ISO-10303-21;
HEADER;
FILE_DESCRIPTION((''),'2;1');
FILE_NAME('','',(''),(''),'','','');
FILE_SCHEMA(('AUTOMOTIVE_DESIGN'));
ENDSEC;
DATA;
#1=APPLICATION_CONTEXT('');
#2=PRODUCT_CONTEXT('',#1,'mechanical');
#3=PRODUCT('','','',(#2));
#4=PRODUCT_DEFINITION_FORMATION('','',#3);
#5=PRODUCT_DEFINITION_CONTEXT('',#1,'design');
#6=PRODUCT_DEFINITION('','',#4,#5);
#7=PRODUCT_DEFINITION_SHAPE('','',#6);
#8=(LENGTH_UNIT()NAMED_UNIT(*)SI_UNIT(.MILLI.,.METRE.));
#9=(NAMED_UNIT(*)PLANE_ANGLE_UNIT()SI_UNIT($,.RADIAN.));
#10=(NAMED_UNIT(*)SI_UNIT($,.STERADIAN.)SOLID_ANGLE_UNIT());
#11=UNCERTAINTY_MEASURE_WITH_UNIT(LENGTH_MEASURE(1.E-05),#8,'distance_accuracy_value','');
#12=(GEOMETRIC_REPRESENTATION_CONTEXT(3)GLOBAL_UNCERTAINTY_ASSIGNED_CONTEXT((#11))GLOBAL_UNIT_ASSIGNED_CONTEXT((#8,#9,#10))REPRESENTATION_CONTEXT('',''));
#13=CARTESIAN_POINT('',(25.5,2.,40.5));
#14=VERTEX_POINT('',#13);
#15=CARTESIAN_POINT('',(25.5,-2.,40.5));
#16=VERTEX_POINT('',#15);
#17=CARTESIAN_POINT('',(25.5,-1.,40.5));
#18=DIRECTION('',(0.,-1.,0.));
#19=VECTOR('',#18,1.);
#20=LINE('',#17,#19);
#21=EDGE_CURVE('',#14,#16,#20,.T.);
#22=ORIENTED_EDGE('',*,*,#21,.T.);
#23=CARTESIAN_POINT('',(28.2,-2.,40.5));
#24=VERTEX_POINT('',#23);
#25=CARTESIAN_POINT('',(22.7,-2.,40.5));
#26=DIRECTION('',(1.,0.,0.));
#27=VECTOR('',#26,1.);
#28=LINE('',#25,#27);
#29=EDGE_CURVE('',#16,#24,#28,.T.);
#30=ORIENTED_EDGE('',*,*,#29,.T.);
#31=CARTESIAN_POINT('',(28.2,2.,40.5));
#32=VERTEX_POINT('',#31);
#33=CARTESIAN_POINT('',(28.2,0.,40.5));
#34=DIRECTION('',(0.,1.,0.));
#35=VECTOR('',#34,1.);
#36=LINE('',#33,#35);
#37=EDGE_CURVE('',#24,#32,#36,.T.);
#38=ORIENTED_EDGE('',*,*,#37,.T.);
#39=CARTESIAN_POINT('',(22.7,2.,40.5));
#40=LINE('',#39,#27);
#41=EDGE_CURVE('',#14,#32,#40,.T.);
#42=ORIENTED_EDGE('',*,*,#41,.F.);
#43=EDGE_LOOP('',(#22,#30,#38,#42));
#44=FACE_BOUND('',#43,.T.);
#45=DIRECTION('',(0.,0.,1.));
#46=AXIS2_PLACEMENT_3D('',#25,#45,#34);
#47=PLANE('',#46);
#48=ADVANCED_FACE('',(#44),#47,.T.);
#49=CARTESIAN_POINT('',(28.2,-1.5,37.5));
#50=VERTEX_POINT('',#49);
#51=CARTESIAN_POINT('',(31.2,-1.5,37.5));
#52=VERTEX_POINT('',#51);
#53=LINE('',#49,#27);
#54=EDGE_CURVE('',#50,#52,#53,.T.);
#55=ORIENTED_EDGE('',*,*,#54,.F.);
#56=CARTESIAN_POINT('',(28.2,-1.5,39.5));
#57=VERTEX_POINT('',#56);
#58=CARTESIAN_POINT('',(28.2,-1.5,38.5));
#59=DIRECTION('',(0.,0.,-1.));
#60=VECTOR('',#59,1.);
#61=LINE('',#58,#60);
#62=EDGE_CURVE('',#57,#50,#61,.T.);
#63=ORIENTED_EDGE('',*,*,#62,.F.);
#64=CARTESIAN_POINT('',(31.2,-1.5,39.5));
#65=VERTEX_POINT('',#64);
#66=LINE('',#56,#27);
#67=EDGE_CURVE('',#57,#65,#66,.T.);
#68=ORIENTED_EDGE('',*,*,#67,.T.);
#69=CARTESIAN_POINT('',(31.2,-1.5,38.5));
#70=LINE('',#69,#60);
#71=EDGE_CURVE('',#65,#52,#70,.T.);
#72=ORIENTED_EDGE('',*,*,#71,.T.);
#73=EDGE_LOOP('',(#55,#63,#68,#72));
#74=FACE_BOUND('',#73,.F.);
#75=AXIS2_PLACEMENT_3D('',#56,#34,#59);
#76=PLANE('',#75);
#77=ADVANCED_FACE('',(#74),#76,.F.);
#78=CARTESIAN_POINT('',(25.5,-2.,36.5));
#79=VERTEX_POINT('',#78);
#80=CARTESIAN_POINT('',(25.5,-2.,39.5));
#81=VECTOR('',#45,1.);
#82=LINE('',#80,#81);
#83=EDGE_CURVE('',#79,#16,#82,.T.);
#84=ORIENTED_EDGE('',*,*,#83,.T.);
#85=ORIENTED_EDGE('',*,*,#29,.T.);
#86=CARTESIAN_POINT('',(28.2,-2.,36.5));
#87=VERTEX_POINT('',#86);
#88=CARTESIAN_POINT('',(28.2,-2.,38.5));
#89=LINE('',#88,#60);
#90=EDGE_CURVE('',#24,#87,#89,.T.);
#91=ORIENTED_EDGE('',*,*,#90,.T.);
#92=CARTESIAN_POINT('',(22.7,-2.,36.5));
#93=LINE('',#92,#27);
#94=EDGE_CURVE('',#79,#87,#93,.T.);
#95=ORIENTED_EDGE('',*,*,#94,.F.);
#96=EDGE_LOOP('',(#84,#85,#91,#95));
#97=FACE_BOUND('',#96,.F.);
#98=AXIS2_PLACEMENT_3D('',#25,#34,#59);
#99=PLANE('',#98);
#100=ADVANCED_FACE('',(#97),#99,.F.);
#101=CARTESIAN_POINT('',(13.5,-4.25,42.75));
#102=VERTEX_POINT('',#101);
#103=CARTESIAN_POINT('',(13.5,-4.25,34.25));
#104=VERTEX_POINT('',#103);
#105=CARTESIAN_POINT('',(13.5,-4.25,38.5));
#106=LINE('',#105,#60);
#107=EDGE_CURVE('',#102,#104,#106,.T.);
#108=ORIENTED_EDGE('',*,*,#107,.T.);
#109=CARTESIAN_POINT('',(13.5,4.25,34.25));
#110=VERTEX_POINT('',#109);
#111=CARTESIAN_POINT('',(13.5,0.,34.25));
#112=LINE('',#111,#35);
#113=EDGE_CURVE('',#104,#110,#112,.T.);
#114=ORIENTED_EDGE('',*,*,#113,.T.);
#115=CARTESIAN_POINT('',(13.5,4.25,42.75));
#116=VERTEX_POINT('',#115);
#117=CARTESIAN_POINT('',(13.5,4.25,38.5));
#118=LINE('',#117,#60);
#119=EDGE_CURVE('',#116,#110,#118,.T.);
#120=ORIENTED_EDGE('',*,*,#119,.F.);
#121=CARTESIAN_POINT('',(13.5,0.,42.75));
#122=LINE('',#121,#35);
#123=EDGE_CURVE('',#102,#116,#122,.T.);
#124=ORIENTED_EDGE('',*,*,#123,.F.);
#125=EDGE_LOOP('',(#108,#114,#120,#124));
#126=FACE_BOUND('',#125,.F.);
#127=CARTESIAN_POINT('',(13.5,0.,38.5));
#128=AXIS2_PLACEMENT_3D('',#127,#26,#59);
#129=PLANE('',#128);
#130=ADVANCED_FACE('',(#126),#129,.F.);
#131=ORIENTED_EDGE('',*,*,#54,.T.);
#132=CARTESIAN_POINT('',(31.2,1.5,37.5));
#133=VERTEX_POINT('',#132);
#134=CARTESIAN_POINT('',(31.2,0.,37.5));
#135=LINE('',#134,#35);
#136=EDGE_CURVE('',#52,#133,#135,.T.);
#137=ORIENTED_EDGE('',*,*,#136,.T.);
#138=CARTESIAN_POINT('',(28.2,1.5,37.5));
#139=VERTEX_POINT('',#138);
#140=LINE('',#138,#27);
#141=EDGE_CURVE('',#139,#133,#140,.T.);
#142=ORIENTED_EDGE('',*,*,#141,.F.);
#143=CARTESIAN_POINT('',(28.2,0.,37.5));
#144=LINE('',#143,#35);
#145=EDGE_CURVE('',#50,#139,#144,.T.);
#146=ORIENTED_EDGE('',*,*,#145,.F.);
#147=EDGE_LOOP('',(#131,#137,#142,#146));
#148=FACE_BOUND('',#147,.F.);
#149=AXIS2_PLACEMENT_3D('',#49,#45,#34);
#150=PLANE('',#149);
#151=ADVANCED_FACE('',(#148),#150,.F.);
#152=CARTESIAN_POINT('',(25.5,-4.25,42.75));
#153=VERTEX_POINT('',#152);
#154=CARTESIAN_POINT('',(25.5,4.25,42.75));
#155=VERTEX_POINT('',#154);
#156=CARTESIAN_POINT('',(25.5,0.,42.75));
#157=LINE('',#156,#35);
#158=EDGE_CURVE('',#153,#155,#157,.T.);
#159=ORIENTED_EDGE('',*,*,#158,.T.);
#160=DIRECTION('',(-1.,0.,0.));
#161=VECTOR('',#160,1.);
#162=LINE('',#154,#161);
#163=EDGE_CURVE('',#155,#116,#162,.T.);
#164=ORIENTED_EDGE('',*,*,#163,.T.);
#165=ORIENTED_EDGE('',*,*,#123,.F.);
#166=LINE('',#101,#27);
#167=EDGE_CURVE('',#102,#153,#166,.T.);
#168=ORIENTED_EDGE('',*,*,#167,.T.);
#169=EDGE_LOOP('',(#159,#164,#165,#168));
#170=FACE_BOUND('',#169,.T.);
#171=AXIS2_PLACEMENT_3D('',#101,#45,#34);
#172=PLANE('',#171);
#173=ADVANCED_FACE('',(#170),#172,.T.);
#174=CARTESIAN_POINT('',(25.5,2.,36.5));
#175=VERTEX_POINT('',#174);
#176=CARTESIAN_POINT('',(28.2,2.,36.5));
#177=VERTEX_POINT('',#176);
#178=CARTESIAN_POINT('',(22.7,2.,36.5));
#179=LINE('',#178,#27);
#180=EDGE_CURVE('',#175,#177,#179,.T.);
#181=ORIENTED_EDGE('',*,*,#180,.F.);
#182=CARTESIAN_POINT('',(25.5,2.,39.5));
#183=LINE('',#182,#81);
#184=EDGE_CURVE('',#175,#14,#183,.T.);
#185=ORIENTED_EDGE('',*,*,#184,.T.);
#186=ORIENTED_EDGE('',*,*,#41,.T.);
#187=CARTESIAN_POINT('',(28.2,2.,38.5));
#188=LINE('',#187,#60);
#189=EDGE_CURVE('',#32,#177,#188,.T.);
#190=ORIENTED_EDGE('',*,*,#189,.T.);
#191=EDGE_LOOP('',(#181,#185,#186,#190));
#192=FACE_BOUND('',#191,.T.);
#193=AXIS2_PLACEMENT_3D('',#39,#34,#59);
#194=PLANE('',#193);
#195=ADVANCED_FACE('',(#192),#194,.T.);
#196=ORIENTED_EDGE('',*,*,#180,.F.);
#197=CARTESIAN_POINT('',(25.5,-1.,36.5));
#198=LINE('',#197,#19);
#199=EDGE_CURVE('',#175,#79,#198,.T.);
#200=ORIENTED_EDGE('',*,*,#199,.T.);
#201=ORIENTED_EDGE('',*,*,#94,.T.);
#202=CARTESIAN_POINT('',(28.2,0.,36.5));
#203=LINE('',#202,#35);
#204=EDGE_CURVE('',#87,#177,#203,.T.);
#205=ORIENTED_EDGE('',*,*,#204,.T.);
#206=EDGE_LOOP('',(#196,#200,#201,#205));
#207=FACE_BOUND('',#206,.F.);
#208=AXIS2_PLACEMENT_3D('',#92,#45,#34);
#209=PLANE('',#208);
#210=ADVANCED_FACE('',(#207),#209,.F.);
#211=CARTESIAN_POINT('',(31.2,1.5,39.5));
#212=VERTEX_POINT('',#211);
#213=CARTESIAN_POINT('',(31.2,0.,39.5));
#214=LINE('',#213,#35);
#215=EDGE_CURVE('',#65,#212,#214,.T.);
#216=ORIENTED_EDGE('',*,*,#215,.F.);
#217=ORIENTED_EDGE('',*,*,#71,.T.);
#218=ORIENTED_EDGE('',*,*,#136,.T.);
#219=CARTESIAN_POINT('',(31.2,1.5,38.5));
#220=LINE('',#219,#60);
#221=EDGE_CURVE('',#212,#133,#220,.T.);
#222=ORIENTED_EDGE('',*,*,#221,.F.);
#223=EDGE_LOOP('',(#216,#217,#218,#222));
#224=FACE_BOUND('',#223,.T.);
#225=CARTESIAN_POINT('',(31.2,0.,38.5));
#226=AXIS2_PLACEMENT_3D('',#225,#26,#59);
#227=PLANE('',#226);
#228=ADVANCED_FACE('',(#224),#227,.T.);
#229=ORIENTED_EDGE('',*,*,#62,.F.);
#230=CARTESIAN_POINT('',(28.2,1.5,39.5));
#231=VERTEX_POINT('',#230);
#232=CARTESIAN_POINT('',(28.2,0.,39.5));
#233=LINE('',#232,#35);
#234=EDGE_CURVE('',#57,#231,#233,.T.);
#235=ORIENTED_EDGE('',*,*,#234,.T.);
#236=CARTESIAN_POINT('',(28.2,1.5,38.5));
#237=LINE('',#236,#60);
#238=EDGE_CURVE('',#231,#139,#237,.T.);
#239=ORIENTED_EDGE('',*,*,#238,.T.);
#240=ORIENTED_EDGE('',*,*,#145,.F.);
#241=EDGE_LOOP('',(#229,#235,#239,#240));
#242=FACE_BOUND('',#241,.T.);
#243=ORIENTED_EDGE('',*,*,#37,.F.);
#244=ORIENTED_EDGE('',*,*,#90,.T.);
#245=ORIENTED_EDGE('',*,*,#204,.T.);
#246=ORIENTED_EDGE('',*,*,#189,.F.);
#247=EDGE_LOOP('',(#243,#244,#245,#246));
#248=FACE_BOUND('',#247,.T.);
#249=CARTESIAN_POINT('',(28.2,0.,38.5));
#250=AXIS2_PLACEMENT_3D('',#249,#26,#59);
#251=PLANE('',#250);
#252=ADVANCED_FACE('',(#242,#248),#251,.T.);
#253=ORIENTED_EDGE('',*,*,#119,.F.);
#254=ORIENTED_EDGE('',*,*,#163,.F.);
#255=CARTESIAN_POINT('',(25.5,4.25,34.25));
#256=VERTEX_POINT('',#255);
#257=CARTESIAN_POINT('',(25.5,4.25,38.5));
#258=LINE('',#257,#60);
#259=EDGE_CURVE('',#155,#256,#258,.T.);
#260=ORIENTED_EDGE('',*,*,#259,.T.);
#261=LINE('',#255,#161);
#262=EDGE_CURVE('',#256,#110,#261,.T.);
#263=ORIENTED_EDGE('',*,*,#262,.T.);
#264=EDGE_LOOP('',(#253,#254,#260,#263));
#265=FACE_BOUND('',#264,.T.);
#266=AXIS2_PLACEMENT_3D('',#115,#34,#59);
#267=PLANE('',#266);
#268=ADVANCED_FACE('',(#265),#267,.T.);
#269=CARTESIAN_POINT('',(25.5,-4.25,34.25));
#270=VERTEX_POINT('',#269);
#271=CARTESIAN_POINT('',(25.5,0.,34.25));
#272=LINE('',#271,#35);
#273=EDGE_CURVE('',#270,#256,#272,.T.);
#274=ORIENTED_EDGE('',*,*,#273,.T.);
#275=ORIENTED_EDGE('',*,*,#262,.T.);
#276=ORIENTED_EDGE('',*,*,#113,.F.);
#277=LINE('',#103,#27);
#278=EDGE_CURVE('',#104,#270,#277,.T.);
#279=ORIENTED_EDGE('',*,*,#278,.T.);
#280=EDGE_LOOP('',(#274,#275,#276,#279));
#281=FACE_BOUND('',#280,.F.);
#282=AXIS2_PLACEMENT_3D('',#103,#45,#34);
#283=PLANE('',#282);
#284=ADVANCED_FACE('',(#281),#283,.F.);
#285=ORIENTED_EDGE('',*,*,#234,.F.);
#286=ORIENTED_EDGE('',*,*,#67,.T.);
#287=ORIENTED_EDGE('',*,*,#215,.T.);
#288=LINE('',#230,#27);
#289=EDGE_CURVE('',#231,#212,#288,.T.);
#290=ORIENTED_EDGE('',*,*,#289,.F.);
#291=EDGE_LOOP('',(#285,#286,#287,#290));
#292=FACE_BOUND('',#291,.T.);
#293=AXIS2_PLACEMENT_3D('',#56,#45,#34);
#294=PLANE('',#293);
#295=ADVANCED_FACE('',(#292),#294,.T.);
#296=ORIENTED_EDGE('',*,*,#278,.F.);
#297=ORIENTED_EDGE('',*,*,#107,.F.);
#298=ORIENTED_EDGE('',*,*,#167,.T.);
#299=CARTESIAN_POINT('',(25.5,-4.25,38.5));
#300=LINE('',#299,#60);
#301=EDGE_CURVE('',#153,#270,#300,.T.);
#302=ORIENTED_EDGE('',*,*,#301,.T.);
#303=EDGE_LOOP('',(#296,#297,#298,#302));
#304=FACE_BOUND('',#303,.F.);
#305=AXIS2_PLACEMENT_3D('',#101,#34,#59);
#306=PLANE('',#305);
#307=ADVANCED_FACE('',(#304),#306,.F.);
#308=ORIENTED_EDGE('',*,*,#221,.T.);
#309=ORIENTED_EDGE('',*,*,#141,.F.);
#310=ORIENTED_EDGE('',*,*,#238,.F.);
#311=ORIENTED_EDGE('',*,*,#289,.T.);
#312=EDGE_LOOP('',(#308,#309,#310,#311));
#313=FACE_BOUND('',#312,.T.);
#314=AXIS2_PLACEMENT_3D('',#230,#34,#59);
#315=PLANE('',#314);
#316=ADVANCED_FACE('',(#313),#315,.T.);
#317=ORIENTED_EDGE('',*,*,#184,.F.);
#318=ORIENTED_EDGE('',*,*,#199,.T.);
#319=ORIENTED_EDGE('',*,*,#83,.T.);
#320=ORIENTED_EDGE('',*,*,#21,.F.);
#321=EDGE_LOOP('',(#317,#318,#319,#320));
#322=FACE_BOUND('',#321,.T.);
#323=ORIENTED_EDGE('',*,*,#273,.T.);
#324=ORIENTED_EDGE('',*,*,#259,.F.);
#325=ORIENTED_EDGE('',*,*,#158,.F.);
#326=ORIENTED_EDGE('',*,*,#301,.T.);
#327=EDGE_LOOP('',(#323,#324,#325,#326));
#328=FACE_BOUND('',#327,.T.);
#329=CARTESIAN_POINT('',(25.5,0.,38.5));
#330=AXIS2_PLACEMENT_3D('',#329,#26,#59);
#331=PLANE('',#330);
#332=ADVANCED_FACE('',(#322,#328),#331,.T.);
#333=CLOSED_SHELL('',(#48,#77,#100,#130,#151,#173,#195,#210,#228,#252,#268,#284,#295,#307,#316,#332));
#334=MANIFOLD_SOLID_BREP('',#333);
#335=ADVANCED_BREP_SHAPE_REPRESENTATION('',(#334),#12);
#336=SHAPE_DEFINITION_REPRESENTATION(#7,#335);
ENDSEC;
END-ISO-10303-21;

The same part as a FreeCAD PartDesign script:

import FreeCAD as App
import Part
import Sketcher
from FreeCAD import Vector
Q = App.Units.Quantity


def add_polygon(sketch, points):
    """Adds a closed chain of lines whose ends are joined by coincident constraints."""
    first, n = sketch.GeometryCount, len(points)
    for a, b in zip(points, points[1:] + points[:1]):
        sketch.addGeometry(Part.LineSegment(App.Vector(*a, 0), App.Vector(*b, 0)), False)
    for i in range(n):
        sketch.addConstraint(Sketcher.Constraint("Coincident", first + i, 2, first + (i + 1) % n, 1))

doc = App.newDocument("Part")
body = doc.addObject("PartDesign::Body", "Body")

# Sketch on XY plane
sketch1 = body.newObject("Sketcher::SketchObject", "Sketch")
sketch1.AttachmentSupport = (doc.getObject("XY_Plane"), [""])
sketch1.MapMode = "FlatFace"
sketch1.AttachmentOffset = App.Placement(Vector(0, 0, 5.7), App.Rotation())
add_polygon(sketch1, [(-2, 2), (-2, -2), (2, -2), (2, 2)])  # lines 0-3
sketch1.addConstraint([
    Sketcher.Constraint("Vertical", 0),
    Sketcher.Constraint("Horizontal", 1),
    Sketcher.Constraint("Vertical", 2),
    Sketcher.Constraint("Horizontal", 3),
    Sketcher.Constraint("Symmetric", 0, 2, 2, 2, -1, 1),
    Sketcher.Constraint("Equal", 3, 0),
    Sketcher.Constraint("DistanceX", 1, 1, 1, 2, Q("4 mm")),
])
pad1 = body.newObject("PartDesign::Pad", "Pad")
pad1.Profile = sketch1
pad1.Length = 5.5
body2 = doc.addObject("PartDesign::Body", "Body001")

# Sketch on XY plane
sketch2 = body2.newObject("Sketcher::SketchObject", "Sketch001")
sketch2.AttachmentSupport = (doc.getObject("XY_Plane001"), [""])
sketch2.MapMode = "FlatFace"
sketch2.AttachmentOffset = App.Placement(Vector(0, 0, -3.5), App.Rotation())
add_polygon(sketch2, [(-4.25, 4.25), (-4.25, -4.25), (4.25, -4.25), (4.25, 4.25)])  # lines 0-3
sketch2.addConstraint([
    Sketcher.Constraint("Vertical", 0),
    Sketcher.Constraint("Horizontal", 1),
    Sketcher.Constraint("Vertical", 2),
    Sketcher.Constraint("Horizontal", 3),
    Sketcher.Constraint("Symmetric", 0, 2, 2, 2, -1, 1),
    Sketcher.Constraint("Equal", 3, 0),
    Sketcher.Constraint("DistanceX", 1, 1, 1, 2, Q("8.5 mm")),
])
pad2 = body2.newObject("PartDesign::Pad", "Pad001")
pad2.Profile = sketch2
pad2.Length = 3.5
body3 = doc.addObject("PartDesign::Body", "Body002")

# Sketch on XY plane
sketch3 = body3.newObject("Sketcher::SketchObject", "Sketch002")
sketch3.AttachmentSupport = (doc.getObject("XY_Plane002"), [""])
sketch3.MapMode = "FlatFace"
sketch3.AttachmentOffset = App.Placement(Vector(0, 0, 11.2), App.Rotation())
add_polygon(sketch3, [(-1, 1.5), (-1, -1.5), (1, -1.5), (1, 1.5)])  # lines 0-3
sketch3.addConstraint([
    Sketcher.Constraint("Vertical", 0),
    Sketcher.Constraint("Horizontal", 1),
    Sketcher.Constraint("Vertical", 2),
    Sketcher.Constraint("Horizontal", 3),
    Sketcher.Constraint("Symmetric", 0, 2, 2, 2, -1, 1),
    Sketcher.Constraint("DistanceX", 1, 1, 1, 2, Q("2 mm")),
    Sketcher.Constraint("DistanceY", 0, 2, 0, 1, Q("3 mm")),
])
pad3 = body3.newObject("PartDesign::Pad", "Pad002")
pad3.Profile = sketch3
pad3.Length = 3
body4 = doc.addObject("PartDesign::Body", "Body003")

# Sketch on XY plane
sketch4 = body4.newObject("Sketcher::SketchObject", "Sketch003")
sketch4.AttachmentSupport = (doc.getObject("XY_Plane003"), [""])
sketch4.MapMode = "FlatFace"
add_polygon(sketch4, [(-4.25, 4.25), (-4.25, -4.25), (4.25, -4.25), (4.25, 4.25)])  # lines 0-3
sketch4.addConstraint([
    Sketcher.Constraint("Vertical", 0),
    Sketcher.Constraint("Horizontal", 1),
    Sketcher.Constraint("Vertical", 2),
    Sketcher.Constraint("Horizontal", 3),
    Sketcher.Constraint("Symmetric", 0, 2, 2, 2, -1, 1),
    Sketcher.Constraint("Equal", 3, 0),
    Sketcher.Constraint("DistanceX", 1, 1, 1, 2, Q("8.5 mm")),
])
pad4 = body4.newObject("PartDesign::Pad", "Pad003")
pad4.Profile = sketch4
pad4.Length = 8.5
doc.recompute()

boolean = body4.newObject("PartDesign::Boolean", "Boolean")
boolean.Type = "Fuse"
boolean.addObjects([body])
doc.recompute()

boolean2 = body4.newObject("PartDesign::Boolean", "Boolean001")
boolean2.Type = "Fuse"
boolean2.addObjects([body2])
doc.recompute()

boolean3 = body4.newObject("PartDesign::Boolean", "Boolean002")
boolean3.Type = "Fuse"
boolean3.addObjects([body3])
body5 = doc.addObject("PartDesign::Body", "Body004")
doc.recompute()

body4.Placement = App.Placement(Vector(17, 0, 38.5), App.Rotation(Vector(0, 1, 0), 90))
boolean4 = body5.newObject("PartDesign::Boolean", "Boolean003")
boolean4.Type = "Fuse"
boolean4.addObjects([body4])

doc.recompute()
